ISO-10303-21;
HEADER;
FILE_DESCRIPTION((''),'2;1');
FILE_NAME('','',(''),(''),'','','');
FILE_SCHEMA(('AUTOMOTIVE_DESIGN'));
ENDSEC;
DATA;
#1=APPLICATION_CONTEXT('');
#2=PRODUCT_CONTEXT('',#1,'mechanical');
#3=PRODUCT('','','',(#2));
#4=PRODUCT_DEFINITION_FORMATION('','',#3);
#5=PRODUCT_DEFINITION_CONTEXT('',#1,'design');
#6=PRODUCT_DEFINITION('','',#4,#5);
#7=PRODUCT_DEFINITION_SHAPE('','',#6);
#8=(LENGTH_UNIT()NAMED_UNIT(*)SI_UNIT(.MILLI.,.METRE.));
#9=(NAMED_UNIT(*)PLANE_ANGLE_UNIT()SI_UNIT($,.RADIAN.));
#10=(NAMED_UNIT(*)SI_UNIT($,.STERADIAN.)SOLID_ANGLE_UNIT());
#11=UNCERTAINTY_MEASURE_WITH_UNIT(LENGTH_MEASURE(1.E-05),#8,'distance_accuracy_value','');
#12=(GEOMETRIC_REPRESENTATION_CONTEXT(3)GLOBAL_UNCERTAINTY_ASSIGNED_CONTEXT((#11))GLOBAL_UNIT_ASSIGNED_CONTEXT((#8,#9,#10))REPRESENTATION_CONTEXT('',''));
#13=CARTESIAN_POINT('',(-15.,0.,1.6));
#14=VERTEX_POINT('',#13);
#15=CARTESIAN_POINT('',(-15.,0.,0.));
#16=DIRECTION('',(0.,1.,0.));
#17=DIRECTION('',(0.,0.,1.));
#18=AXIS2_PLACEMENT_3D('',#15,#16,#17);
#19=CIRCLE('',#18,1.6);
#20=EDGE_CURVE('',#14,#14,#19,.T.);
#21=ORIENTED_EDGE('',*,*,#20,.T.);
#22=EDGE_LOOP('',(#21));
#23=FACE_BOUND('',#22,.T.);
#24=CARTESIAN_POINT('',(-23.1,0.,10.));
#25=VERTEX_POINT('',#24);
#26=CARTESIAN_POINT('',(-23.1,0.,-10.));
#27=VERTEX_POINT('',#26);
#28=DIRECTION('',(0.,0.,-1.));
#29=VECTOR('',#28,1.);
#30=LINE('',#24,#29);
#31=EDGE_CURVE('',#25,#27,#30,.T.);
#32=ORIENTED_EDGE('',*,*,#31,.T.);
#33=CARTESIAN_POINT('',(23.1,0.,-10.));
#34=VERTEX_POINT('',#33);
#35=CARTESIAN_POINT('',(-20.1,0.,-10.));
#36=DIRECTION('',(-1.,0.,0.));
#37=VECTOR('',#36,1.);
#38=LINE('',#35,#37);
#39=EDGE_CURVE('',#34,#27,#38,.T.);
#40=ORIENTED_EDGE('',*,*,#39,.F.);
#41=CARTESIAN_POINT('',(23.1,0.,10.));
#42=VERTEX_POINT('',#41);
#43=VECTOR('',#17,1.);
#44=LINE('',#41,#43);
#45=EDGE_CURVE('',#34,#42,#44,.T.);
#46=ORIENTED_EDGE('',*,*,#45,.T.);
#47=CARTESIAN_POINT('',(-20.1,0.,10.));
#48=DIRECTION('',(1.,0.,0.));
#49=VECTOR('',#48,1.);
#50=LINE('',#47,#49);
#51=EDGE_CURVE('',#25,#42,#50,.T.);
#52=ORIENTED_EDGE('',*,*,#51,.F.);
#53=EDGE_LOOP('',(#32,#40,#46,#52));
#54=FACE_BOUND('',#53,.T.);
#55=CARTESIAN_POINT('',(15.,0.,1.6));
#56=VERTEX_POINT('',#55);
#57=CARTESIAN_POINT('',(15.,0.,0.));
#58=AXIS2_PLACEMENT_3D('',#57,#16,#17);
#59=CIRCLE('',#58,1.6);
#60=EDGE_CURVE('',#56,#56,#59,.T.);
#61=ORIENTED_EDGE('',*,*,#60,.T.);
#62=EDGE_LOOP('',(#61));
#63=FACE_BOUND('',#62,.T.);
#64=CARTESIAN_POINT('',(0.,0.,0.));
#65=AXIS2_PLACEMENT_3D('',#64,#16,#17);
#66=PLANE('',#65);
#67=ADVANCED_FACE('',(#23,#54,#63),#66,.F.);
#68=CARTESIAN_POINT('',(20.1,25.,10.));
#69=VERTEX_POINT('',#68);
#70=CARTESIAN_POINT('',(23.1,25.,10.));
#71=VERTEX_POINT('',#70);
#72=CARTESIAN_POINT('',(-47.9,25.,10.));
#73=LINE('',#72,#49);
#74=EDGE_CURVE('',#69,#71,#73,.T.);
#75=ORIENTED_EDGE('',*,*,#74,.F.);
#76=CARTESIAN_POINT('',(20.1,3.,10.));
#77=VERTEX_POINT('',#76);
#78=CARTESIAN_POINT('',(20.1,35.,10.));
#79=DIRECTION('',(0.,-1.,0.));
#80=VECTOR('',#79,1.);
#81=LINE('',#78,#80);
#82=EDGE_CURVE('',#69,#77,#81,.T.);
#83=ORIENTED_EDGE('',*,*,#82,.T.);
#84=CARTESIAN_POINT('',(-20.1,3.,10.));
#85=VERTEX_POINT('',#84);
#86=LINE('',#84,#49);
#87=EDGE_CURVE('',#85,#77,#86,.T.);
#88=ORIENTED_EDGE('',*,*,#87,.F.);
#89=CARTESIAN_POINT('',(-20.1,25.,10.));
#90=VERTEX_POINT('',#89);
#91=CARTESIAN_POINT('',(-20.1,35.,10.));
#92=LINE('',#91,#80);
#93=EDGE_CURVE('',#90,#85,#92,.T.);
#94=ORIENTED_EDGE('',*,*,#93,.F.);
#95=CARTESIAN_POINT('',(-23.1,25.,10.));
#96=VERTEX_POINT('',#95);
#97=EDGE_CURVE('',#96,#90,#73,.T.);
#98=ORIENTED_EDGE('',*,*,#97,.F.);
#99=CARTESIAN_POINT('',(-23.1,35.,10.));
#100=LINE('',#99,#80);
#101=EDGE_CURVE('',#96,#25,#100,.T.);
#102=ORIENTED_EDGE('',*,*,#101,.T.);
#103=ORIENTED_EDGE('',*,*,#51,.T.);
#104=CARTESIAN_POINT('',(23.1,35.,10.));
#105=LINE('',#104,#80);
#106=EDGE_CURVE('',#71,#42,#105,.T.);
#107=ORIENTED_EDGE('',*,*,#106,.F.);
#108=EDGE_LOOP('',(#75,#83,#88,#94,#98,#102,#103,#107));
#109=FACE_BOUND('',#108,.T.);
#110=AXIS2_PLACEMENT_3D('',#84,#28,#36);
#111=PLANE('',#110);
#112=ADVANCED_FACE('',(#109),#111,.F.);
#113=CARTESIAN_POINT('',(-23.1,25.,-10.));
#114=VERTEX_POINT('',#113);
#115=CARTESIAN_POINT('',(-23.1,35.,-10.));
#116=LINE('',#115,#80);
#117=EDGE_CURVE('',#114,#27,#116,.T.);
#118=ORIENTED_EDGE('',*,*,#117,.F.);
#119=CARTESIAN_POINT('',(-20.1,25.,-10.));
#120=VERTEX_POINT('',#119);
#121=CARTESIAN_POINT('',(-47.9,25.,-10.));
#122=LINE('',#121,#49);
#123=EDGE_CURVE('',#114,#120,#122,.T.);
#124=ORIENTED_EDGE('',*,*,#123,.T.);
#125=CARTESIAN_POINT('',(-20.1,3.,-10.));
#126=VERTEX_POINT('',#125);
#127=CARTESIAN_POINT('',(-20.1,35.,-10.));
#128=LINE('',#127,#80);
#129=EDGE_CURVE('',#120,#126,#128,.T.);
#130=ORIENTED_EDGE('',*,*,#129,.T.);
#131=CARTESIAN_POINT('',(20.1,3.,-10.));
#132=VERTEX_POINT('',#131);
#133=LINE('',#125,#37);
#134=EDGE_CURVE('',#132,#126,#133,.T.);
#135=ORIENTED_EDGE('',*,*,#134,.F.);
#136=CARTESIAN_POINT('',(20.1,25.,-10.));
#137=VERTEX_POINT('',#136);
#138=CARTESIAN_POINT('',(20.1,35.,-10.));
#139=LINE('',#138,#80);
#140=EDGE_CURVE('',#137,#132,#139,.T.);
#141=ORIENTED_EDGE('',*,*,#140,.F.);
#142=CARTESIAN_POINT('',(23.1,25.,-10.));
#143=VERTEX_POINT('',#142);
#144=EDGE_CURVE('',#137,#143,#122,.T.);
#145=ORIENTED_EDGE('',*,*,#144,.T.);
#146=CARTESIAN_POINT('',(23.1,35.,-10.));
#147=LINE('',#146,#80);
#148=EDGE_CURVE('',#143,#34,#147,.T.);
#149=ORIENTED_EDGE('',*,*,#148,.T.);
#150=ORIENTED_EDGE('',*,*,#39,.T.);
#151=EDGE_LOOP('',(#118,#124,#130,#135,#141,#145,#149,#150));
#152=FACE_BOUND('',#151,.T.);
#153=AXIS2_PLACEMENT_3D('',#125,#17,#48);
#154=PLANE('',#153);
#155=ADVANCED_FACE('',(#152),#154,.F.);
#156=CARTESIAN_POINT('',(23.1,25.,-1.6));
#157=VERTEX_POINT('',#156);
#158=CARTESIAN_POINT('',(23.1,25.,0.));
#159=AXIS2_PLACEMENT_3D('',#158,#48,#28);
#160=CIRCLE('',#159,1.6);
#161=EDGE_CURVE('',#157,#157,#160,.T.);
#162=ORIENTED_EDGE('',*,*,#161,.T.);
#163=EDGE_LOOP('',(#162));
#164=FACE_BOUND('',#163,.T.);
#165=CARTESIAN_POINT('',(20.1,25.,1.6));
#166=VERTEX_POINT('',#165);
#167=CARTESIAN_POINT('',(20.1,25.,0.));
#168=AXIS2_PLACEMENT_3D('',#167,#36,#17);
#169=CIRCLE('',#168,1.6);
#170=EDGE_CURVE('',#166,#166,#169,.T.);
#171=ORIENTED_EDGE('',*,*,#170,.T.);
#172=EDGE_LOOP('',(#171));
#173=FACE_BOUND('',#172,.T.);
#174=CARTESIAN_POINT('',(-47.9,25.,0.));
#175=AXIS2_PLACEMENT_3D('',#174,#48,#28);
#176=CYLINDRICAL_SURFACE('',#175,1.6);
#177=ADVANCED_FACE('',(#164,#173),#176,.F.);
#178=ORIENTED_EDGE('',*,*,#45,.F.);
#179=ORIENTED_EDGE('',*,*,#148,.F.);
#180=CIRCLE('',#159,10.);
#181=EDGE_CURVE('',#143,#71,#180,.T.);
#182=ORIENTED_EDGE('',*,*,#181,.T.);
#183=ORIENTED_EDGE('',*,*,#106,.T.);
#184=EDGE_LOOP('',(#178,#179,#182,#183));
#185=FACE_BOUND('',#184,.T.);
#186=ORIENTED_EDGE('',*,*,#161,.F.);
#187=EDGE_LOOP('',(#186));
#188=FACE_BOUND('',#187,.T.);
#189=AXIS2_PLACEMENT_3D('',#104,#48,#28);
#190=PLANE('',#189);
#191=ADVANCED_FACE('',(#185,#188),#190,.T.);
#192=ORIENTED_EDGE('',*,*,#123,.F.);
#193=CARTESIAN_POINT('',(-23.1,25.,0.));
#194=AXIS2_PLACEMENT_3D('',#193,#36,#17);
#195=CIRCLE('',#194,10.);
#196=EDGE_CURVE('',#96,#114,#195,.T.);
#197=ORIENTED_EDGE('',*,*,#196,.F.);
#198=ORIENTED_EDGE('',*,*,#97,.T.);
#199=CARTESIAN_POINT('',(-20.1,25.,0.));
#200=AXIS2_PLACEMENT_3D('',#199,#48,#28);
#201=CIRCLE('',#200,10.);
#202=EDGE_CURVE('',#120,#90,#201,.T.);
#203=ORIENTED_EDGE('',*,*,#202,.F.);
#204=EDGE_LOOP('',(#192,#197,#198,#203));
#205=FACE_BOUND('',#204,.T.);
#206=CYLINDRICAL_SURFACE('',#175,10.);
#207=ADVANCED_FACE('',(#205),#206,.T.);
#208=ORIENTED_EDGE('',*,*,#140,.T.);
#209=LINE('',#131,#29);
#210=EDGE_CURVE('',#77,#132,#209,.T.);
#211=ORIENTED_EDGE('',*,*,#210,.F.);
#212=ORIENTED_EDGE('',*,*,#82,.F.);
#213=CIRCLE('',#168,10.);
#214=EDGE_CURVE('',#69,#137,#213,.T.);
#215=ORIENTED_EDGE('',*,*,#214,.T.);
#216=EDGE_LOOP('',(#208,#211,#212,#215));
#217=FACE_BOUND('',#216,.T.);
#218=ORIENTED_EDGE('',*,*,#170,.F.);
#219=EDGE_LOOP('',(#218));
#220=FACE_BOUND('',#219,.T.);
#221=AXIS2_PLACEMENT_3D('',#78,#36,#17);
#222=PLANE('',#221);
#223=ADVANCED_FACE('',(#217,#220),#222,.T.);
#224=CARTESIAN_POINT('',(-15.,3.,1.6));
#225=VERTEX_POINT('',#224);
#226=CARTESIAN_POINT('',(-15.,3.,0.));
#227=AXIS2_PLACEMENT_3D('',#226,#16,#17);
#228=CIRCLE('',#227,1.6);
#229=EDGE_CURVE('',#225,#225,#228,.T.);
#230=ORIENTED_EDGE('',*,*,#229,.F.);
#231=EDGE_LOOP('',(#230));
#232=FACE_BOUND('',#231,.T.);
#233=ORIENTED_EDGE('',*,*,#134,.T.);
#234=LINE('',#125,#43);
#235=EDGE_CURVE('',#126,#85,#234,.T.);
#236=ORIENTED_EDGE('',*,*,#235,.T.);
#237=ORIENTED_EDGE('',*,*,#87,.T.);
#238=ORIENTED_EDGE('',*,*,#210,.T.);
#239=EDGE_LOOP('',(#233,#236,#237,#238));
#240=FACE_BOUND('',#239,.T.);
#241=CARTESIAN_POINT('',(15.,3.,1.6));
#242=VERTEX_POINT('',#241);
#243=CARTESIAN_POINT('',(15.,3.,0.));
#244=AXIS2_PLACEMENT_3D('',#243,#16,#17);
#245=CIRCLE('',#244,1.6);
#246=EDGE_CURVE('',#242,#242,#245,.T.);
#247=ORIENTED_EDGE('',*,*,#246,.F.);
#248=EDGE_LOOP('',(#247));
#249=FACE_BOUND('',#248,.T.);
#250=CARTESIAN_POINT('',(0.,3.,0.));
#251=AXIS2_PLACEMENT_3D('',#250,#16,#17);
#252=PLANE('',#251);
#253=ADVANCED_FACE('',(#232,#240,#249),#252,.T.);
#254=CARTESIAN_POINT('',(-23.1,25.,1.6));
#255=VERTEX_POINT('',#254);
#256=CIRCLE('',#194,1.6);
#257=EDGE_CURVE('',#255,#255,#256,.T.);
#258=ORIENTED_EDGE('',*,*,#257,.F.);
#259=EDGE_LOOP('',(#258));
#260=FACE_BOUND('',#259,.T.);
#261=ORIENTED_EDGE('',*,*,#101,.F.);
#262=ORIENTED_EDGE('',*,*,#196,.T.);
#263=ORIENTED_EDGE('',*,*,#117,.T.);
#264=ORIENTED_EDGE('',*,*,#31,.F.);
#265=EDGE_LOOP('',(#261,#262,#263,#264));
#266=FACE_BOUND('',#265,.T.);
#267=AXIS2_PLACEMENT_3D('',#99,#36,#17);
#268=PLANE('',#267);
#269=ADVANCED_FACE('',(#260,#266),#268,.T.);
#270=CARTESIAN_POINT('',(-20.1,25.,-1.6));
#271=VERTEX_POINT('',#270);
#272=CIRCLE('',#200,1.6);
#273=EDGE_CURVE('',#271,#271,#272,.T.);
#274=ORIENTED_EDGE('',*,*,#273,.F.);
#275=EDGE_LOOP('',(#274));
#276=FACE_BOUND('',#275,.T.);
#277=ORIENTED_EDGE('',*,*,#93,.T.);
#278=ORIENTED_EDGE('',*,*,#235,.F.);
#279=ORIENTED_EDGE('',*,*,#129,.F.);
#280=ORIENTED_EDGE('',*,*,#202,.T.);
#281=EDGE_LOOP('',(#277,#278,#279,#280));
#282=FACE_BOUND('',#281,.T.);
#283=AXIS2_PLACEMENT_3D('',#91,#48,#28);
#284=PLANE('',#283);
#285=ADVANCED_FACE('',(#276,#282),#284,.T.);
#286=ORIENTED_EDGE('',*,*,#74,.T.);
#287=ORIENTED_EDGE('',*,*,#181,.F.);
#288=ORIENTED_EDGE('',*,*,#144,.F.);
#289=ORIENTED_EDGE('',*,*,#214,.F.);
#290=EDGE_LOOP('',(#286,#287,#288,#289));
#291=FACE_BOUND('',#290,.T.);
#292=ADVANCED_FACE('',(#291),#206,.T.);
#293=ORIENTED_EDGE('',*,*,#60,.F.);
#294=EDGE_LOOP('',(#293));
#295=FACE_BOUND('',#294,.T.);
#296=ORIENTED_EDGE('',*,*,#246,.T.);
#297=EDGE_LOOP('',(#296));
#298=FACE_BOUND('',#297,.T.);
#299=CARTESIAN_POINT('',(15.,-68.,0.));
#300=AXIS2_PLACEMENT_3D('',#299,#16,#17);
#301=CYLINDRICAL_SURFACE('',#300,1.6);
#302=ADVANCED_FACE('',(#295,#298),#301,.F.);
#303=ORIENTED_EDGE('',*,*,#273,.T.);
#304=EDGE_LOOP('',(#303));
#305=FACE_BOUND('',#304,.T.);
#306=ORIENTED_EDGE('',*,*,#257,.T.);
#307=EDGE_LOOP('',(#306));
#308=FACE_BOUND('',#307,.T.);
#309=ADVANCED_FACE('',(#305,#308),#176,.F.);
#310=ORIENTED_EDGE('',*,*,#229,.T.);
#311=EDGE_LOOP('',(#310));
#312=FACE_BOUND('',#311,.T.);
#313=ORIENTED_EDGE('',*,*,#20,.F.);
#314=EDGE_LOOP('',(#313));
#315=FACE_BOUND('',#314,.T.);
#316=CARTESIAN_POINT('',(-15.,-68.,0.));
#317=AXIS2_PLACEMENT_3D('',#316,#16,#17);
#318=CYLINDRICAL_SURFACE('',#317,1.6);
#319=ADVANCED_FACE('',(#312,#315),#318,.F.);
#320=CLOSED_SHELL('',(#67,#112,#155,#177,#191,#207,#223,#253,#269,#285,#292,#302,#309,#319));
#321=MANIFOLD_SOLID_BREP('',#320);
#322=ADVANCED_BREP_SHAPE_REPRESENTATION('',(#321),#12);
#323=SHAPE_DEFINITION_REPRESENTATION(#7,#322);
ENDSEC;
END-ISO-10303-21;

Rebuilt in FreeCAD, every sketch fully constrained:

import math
import FreeCAD as App
import Part
import Sketcher

V = App.Vector
Q = App.Units.Quantity

doc = App.newDocument("Part")
params = doc.addObject("Spreadsheet::Sheet", "Params")
for row, (alias, value) in enumerate([
    ("sketch1_height", "20 mm"),
    ("sketch1_width", "40.2 mm"),
    ("pad1_length", "3 mm"),
    ("sketch2_width", "3 mm"),
    ("sketch2_height", "20 mm"),
    ("pad2_length", "35 mm"),
    ("sketch3_radius", "10 mm"),
    ("pocket1_length", "71 mm"),
    ("sketch4_diameter", "3.2 mm"),
    ("pocket2_length", "71 mm"),
    ("sketch5_diameter", "3.2 mm"),
    ("pocket3_length", "71 mm"),
], start=1):
    params.set(f"A{row}", alias)
    params.set(f"B{row}", "=" + value)
    params.setAlias(f"B{row}", alias)

body = doc.addObject("PartDesign::Body", "Body")

# Sketch on XZ plane
sketch1 = doc.addObject("Sketcher::SketchObject", "Sketch")
body.addObject(sketch1)
sketch1.AttachmentSupport = (doc.XZ_Plane, [""])
sketch1.MapMode = "FlatFace"
sketch1.addGeometry(Part.LineSegment(V(-20, -10, 0), V(-20, 10, 0)), False)
sketch1.addGeometry(Part.LineSegment(V(-20, 10, 0), V(20, 10, 0)), False)
sketch1.addGeometry(Part.LineSegment(V(20, 10, 0), V(20, -10, 0)), False)
sketch1.addGeometry(Part.LineSegment(V(20, -10, 0), V(-20, -10, 0)), False)
sketch1.addConstraint(Sketcher.Constraint("Coincident", 0, 2, 1, 1))
sketch1.addConstraint(Sketcher.Constraint("Coincident", 1, 2, 2, 1))
sketch1.addConstraint(Sketcher.Constraint("Coincident", 2, 2, 3, 1))
sketch1.addConstraint(Sketcher.Constraint("Coincident", 3, 2, 0, 1))
sketch1.addConstraint(Sketcher.Constraint("Vertical", 0))
sketch1.addConstraint(Sketcher.Constraint("Horizontal", 1))
sketch1.addConstraint(Sketcher.Constraint("Vertical", 2))
sketch1.addConstraint(Sketcher.Constraint("Horizontal", 3))
sketch1.addConstraint(Sketcher.Constraint("Symmetric", 0, 2, 2, 2, -1, 1))
sketch1.addConstraint(Sketcher.Constraint("DistanceY", 0, 1, 0, 2, Q("20 mm")))
sketch1.addConstraint(Sketcher.Constraint("DistanceX", 1, 1, 1, 2, Q("40.2 mm")))
sketch1.setExpression("Constraints[9]", "Params.sketch1_height")
sketch1.setExpression("Constraints[10]", "Params.sketch1_width")
pad1 = doc.addObject("PartDesign::Pad", "Pad")
body.addObject(pad1)
pad1.Profile = sketch1
pad1.setExpression("Length", "Params.pad1_length")
pad1.Reversed = True

# Sketch on XZ plane
sketch2 = doc.addObject("Sketcher::SketchObject", "Sketch001")
body.addObject(sketch2)
sketch2.AttachmentSupport = (doc.XZ_Plane, [""])
sketch2.MapMode = "FlatFace"
sketch2.addGeometry(Part.LineSegment(V(-23.1, 10, 0), V(-23.1, -10, 0)), False)
sketch2.addGeometry(Part.LineSegment(V(-23.1, -10, 0), V(-20.1, -10, 0)), False)
sketch2.addGeometry(Part.LineSegment(V(-20.1, -10, 0), V(-20.1, 10, 0)), False)
sketch2.addGeometry(Part.LineSegment(V(-20.1, 10, 0), V(-23.1, 10, 0)), False)
sketch2.addGeometry(Part.LineSegment(V(20.1, 10, 0), V(20.1, -10, 0)), False)
sketch2.addGeometry(Part.LineSegment(V(20.1, -10, 0), V(23.1, -10, 0)), False)
sketch2.addGeometry(Part.LineSegment(V(23.1, -10, 0), V(23.1, 10, 0)), False)
sketch2.addGeometry(Part.LineSegment(V(23.1, 10, 0), V(20.1, 10, 0)), False)
sketch2.addConstraint(Sketcher.Constraint("Coincident", 0, 2, 1, 1))
sketch2.addConstraint(Sketcher.Constraint("Coincident", 1, 2, 2, 1))
sketch2.addConstraint(Sketcher.Constraint("Coincident", 2, 2, 3, 1))
sketch2.addConstraint(Sketcher.Constraint("Coincident", 3, 2, 0, 1))
sketch2.addConstraint(Sketcher.Constraint("Coincident", 4, 2, 5, 1))
sketch2.addConstraint(Sketcher.Constraint("Coincident", 5, 2, 6, 1))
sketch2.addConstraint(Sketcher.Constraint("Coincident", 6, 2, 7, 1))
sketch2.addConstraint(Sketcher.Constraint("Coincident", 7, 2, 4, 1))
sketch2.addConstraint(Sketcher.Constraint("Vertical", 0))
sketch2.addConstraint(Sketcher.Constraint("Horizontal", 1))
sketch2.addConstraint(Sketcher.Constraint("Vertical", 2))
sketch2.addConstraint(Sketcher.Constraint("Horizontal", 3))
sketch2.addConstraint(Sketcher.Constraint("Vertical", 4))
sketch2.addConstraint(Sketcher.Constraint("Horizontal", 5))
sketch2.addConstraint(Sketcher.Constraint("Vertical", 6))
sketch2.addConstraint(Sketcher.Constraint("Horizontal", 7))
sketch2.addConstraint(Sketcher.Constraint("Symmetric", 2, 2, 4, 2, -1, 1))
sketch2.addConstraint(Sketcher.Constraint("Symmetric", 0, 2, 6, 2, -1, 1))
sketch2.addConstraint(Sketcher.Constraint("Horizontal", 1, 2, 4, 2))
sketch2.addConstraint(Sketcher.Constraint("DistanceX", 1, 1, 1, 2, Q("3 mm")))
sketch2.addConstraint(Sketcher.Constraint("DistanceY", 0, 2, 0, 1, Q("20 mm")))
sketch2.addConstraint(Sketcher.Constraint("DistanceX", 0, 2, -1, 1, Q("23.1 mm")))
sketch2.setExpression("Constraints[19]", "Params.sketch2_width")
sketch2.setExpression("Constraints[20]", "Params.sketch2_height")
pad2 = doc.addObject("PartDesign::Pad", "Pad001")
body.addObject(pad2)
pad2.Profile = sketch2
pad2.setExpression("Length", "Params.pad2_length")
pad2.Reversed = True

# Sketch on YZ plane
sketch3 = doc.addObject("Sketcher::SketchObject", "Sketch002")
body.addObject(sketch3)
sketch3.AttachmentSupport = (doc.YZ_Plane, [""])
sketch3.MapMode = "FlatFace"
sketch3.AttachmentOffset = App.Placement(V(0, 0, 23.1), App.Rotation())
sketch3.addGeometry(Part.LineSegment(V(35, 10, 0), V(25, 10, 0)), False)
sketch3.addGeometry(Part.ArcOfCircle(Part.Circle(V(25, 0, 0), V(0, 0, 1), 10), math.radians(0), math.radians(90)), False)
sketch3.addGeometry(Part.LineSegment(V(35, 0, 0), V(35, 10, 0)), False)
sketch3.addGeometry(Part.LineSegment(V(35, -10, 0), V(35, 0, 0)), False)
sketch3.addGeometry(Part.ArcOfCircle(Part.Circle(V(25, 0, 0), V(0, 0, 1), 10), math.radians(-90), math.radians(0)), False)
sketch3.addGeometry(Part.LineSegment(V(25, -10, 0), V(35, -10, 0)), False)
sketch3.addConstraint(Sketcher.Constraint("Tangent", 0, 2, 1, 2))
sketch3.addConstraint(Sketcher.Constraint("Tangent", 1, 1, 2, 1))
sketch3.addConstraint(Sketcher.Constraint("Coincident", 2, 2, 0, 1))
sketch3.addConstraint(Sketcher.Constraint("Tangent", 3, 2, 4, 2))
sketch3.addConstraint(Sketcher.Constraint("Tangent", 4, 1, 5, 1))
sketch3.addConstraint(Sketcher.Constraint("Coincident", 5, 2, 3, 1))
sketch3.addConstraint(Sketcher.Constraint("Horizontal", 0))
sketch3.addConstraint(Sketcher.Constraint("Vertical", 2))
sketch3.addConstraint(Sketcher.Constraint("Vertical", 3))
sketch3.addConstraint(Sketcher.Constraint("Horizontal", 5))
sketch3.addConstraint(Sketcher.Constraint("Coincident", 4, 3, 1, 3))
sketch3.addConstraint(Sketcher.Constraint("Equal", 1, 4))
sketch3.addConstraint(Sketcher.Constraint("PointOnObject", 1, 3, -1))
sketch3.addConstraint(Sketcher.Constraint("Radius", 1, Q("10 mm")))
sketch3.addConstraint(Sketcher.Constraint("DistanceX", -1, 1, 1, 3, Q("25 mm")))
sketch3.setExpression("Constraints[13]", "Params.sketch3_radius")
pocket1 = doc.addObject("PartDesign::Pocket", "Pocket")
body.addObject(pocket1)
pocket1.Profile = sketch3
pocket1.setExpression("Length", "Params.pocket1_length")

# Sketch on YZ plane
sketch4 = doc.addObject("Sketcher::SketchObject", "Sketch003")
body.addObject(sketch4)
sketch4.AttachmentSupport = (doc.YZ_Plane, [""])
sketch4.MapMode = "FlatFace"
sketch4.AttachmentOffset = App.Placement(V(0, 0, 23.1), App.Rotation())
sketch4.addGeometry(Part.Circle(V(25, 0, 0), V(0, 0, 1), 1.6), False)
sketch4.addConstraint(Sketcher.Constraint("PointOnObject", 0, 3, -1))
sketch4.addConstraint(Sketcher.Constraint("Diameter", 0, Q("3.2 mm")))
sketch4.addConstraint(Sketcher.Constraint("DistanceX", -1, 1, 0, 3, Q("25 mm")))
sketch4.setExpression("Constraints[1]", "Params.sketch4_diameter")
pocket2 = doc.addObject("PartDesign::Pocket", "Pocket001")
body.addObject(pocket2)
pocket2.Profile = sketch4
pocket2.setExpression("Length", "Params.pocket2_length")

# Sketch on XZ plane
sketch5 = doc.addObject("Sketcher::SketchObject", "Sketch004")
body.addObject(sketch5)
sketch5.AttachmentSupport = (doc.XZ_Plane, [""])
sketch5.MapMode = "FlatFace"
sketch5.AttachmentOffset = App.Placement(V(0, 0, -3), App.Rotation())
sketch5.addGeometry(Part.Circle(V(-15, 0, 0), V(0, 0, 1), 1.6), False)
sketch5.addGeometry(Part.Circle(V(15, 0, 0), V(0, 0, 1), 1.6), False)
sketch5.addConstraint(Sketcher.Constraint("Equal", 0, 1))
sketch5.addConstraint(Sketcher.Constraint("Symmetric", 0, 3, 1, 3, -1, 1))
sketch5.addConstraint(Sketcher.Constraint("PointOnObject", 0, 3, -1))
sketch5.addConstraint(Sketcher.Constraint("Diameter", 0, Q("3.2 mm")))
sketch5.addConstraint(Sketcher.Constraint("DistanceX", 0, 3, -1, 1, Q("15 mm")))
sketch5.setExpression("Constraints[3]", "Params.sketch5_diameter")
pocket3 = doc.addObject("PartDesign::Pocket", "Pocket002")
body.addObject(pocket3)
pocket3.Profile = sketch5
pocket3.setExpression("Length", "Params.pocket3_length")
pocket3.Reversed = True

doc.recompute()
